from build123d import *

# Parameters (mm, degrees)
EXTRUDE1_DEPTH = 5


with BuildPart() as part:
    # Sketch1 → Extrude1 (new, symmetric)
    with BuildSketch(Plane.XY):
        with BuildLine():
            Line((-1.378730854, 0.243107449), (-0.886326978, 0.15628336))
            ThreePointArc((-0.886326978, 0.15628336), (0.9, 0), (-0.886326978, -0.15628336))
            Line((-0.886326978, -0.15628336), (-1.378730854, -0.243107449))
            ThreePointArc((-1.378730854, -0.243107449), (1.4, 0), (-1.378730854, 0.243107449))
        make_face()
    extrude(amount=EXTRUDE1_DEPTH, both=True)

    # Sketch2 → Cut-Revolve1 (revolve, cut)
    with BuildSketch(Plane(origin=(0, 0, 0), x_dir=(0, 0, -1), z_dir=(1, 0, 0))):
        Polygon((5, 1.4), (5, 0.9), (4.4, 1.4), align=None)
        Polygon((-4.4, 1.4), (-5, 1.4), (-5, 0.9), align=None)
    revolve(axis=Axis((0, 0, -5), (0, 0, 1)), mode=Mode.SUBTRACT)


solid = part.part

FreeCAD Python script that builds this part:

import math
import FreeCAD as App
import Part
import Sketcher
Q = App.Units.Quantity


def add_polygon(sketch, points):
    """Adds a closed chain of lines whose ends are joined by coincident constraints."""
    first, n = sketch.GeometryCount, len(points)
    for a, b in zip(points, points[1:] + points[:1]):
        sketch.addGeometry(Part.LineSegment(App.Vector(*a, 0), App.Vector(*b, 0)), False)
    for i in range(n):
        sketch.addConstraint(Sketcher.Constraint("Coincident", first + i, 2, first + (i + 1) % n, 1))

doc = App.newDocument("Part")
body = doc.addObject("PartDesign::Body", "Body")

# Sketch on XY plane
sketch1 = body.newObject("Sketcher::SketchObject", "Sketch")
sketch1.AttachmentSupport = (doc.getObject("XY_Plane"), [""])
sketch1.MapMode = "FlatFace"
sketch1.addGeometry([
    Part.LineSegment(App.Vector(-1.38, 0.24, 0), App.Vector(-0.89, 0.16, 0)),
    Part.ArcOfCircle(Part.Circle(App.Vector(0, 0, 0), App.Vector(0, 0, 1), 0.9), math.radians(-170), math.radians(170)),
    Part.LineSegment(App.Vector(-0.89, -0.16, 0), App.Vector(-1.38, -0.24, 0)),
    Part.ArcOfCircle(Part.Circle(App.Vector(0, 0, 0), App.Vector(0, 0, 1), 1.4), math.radians(-170), math.radians(170)),
], False)
sketch1.addConstraint([
    Sketcher.Constraint("Coincident", 0, 2, 1, 2),
    Sketcher.Constraint("Coincident", 1, 1, 2, 1),
    Sketcher.Constraint("Coincident", 2, 2, 3, 1),
    Sketcher.Constraint("Coincident", 3, 2, 0, 1),
    Sketcher.Constraint("Coincident", 1, 3, -1, 1),
    Sketcher.Constraint("Coincident", 3, 3, -1, 1),
    Sketcher.Constraint("Vertical", 0, 2, 1, 1),
    Sketcher.Constraint("Vertical", 2, 2, 3, 2),
    Sketcher.Constraint("Radius", 1, 0.9),
    Sketcher.Constraint("Radius", 3, 1.4),
    Sketcher.Constraint("Angle", 0, Q("-10 deg")),
    Sketcher.Constraint("DistanceX", 2, 2, -1, 1, 1.378731),
])
pad1 = body.newObject("PartDesign::Pad", "Pad")
pad1.Profile = sketch1
pad1.Length = 10
pad1.Midplane = True

# Sketch on YZ plane
sketch2 = body.newObject("Sketcher::SketchObject", "Sketch001")
sketch2.AttachmentSupport = (doc.getObject("YZ_Plane"), [""])
sketch2.MapMode = "FlatFace"
add_polygon(sketch2, [(0.9, -5), (1.4, -5), (1.4, -4.4)])  # lines 0-2
add_polygon(sketch2, [(1.4, 4.4), (1.4, 5), (0.9, 5)])  # lines 3-5
sketch2.addConstraint([
    Sketcher.Constraint("Horizontal", 0),
    Sketcher.Constraint("Vertical", 1),
    Sketcher.Constraint("Vertical", 3),
    Sketcher.Constraint("Horizontal", 4),
    Sketcher.Constraint("Symmetric", 0, 2, 3, 2, -1),
    Sketcher.Constraint("Vertical", 2, 2, 4, 2),
    Sketcher.Constraint("Equal", 1, 3),
    Sketcher.Constraint("DistanceX", 0, 1, 0, 2, 0.5),
    Sketcher.Constraint("DistanceY", 1, 1, 1, 2, 0.6),
    Sketcher.Constraint("DistanceY", 0, 2, -1, 1, 5.0),
    Sketcher.Constraint("DistanceX", -1, 1, 0, 2, 1.4),
])
groove = body.newObject("PartDesign::Groove", "Groove")
groove.Profile = sketch2
groove.ReferenceAxis = (sketch2, ["V_Axis"])
groove.Angle = 360

doc.recompute()
